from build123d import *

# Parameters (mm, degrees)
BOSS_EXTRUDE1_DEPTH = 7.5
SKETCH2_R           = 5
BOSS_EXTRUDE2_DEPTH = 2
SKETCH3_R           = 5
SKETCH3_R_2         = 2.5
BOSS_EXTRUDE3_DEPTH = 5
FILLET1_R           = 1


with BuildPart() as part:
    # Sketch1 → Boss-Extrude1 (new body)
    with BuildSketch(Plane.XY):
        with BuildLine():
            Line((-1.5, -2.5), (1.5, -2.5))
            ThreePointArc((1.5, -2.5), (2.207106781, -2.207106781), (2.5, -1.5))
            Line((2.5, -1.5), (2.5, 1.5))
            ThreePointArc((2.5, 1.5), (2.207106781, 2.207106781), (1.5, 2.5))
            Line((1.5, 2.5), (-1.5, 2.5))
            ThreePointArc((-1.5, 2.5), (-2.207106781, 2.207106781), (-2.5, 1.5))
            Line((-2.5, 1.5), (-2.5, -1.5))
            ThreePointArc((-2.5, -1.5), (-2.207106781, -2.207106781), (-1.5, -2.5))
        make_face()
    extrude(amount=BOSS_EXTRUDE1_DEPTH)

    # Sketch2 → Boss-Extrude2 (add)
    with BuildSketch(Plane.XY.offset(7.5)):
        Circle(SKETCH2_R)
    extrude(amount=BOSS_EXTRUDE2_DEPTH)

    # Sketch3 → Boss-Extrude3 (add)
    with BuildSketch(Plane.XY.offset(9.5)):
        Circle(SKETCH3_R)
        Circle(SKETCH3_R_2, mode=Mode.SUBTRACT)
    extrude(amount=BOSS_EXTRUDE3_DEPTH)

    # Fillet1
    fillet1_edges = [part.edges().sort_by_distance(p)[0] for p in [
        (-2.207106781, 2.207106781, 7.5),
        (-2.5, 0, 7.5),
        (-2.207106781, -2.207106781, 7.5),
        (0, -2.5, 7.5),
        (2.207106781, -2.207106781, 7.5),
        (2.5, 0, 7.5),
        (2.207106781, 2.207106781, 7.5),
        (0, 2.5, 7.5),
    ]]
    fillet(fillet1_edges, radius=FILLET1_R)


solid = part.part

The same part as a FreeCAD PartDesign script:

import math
import FreeCAD as App
import Part
import Sketcher


def edges_at(feature, points):
    """Names of the edges that pass closest to the given points."""
    edges = feature.Shape.Edges
    near = lambda p: min(range(len(edges)), key=lambda i: edges[i].distToShape(Part.Vertex(*p))[0])
    return sorted({f"Edge{near(p) + 1}" for p in points})

doc = App.newDocument("Part")
body = doc.addObject("PartDesign::Body", "Body")

sketch1 = doc.addObject("Sketcher::SketchObject", "Sketch")
body.addObject(sketch1)
sketch1.AttachmentSupport = (doc.XY_Plane, [""])
sketch1.MapMode = "FlatFace"
sketch1.addGeometry(Part.LineSegment(App.Vector(-1.5, -2.5, 0), App.Vector(1.5, -2.5, 0)), False)
sketch1.addGeometry(Part.ArcOfCircle(Part.Circle(App.Vector(1.5, -1.5, 0), App.Vector(0, 0, 1), 1), math.radians(-90), math.radians(0)), False)
sketch1.addGeometry(Part.LineSegment(App.Vector(2.5, -1.5, 0), App.Vector(2.5, 1.5, 0)), False)
sketch1.addGeometry(Part.ArcOfCircle(Part.Circle(App.Vector(1.5, 1.5, 0), App.Vector(0, 0, 1), 1), math.radians(0), math.radians(90)), False)
sketch1.addGeometry(Part.LineSegment(App.Vector(1.5, 2.5, 0), App.Vector(-1.5, 2.5, 0)), False)
sketch1.addGeometry(Part.ArcOfCircle(Part.Circle(App.Vector(-1.5, 1.5, 0), App.Vector(0, 0, 1), 1), math.radians(90), math.radians(180)), False)
sketch1.addGeometry(Part.LineSegment(App.Vector(-2.5, 1.5, 0), App.Vector(-2.5, -1.5, 0)), False)
sketch1.addGeometry(Part.ArcOfCircle(Part.Circle(App.Vector(-1.5, -1.5, 0), App.Vector(0, 0, 1), 1), math.radians(-180), math.radians(-90)), False)
sketch1.addConstraint(Sketcher.Constraint("Tangent", 0, 2, 1, 1))
sketch1.addConstraint(Sketcher.Constraint("Tangent", 1, 2, 2, 1))
sketch1.addConstraint(Sketcher.Constraint("Tangent", 2, 2, 3, 1))
sketch1.addConstraint(Sketcher.Constraint("Tangent", 3, 2, 4, 1))
sketch1.addConstraint(Sketcher.Constraint("Tangent", 4, 2, 5, 1))
sketch1.addConstraint(Sketcher.Constraint("Tangent", 5, 2, 6, 1))
sketch1.addConstraint(Sketcher.Constraint("Tangent", 6, 2, 7, 1))
sketch1.addConstraint(Sketcher.Constraint("Tangent", 7, 2, 0, 1))
sketch1.addConstraint(Sketcher.Constraint("Horizontal", 0))
sketch1.addConstraint(Sketcher.Constraint("Vertical", 2))
sketch1.addConstraint(Sketcher.Constraint("Horizontal", 4))
sketch1.addConstraint(Sketcher.Constraint("Vertical", 6))
sketch1.addConstraint(Sketcher.Constraint("Equal", 1, 3))
sketch1.addConstraint(Sketcher.Constraint("Equal", 3, 5))
sketch1.addConstraint(Sketcher.Constraint("Equal", 5, 7))
sketch1.addConstraint(Sketcher.Constraint("Symmetric", 1, 3, 5, 3, -1, 1))
sketch1.addConstraint(Sketcher.Constraint("Equal", 4, 2))
sketch1.addConstraint(Sketcher.Constraint("Radius", 1, 1.0))
sketch1.addConstraint(Sketcher.Constraint("DistanceX", 0, 1, 0, 2, 3.0))
pad1 = doc.addObject("PartDesign::Pad", "Pad")
body.addObject(pad1)
pad1.Profile = sketch1
pad1.Length = 7.5

sketch2 = doc.addObject("Sketcher::SketchObject", "Sketch001")
body.addObject(sketch2)
sketch2.AttachmentSupport = (doc.XY_Plane, [""])
sketch2.MapMode = "FlatFace"
sketch2.AttachmentOffset = App.Placement(App.Vector(0, 0, 7.5), App.Rotation())
sketch2.addGeometry(Part.Circle(App.Vector(0, 0, 0), App.Vector(0, 0, 1), 5), False)
sketch2.addConstraint(Sketcher.Constraint("Coincident", 0, 3, -1, 1))
sketch2.addConstraint(Sketcher.Constraint("Diameter", 0, 10.0))
pad2 = doc.addObject("PartDesign::Pad", "Pad001")
body.addObject(pad2)
pad2.Profile = sketch2
pad2.Length = 2

sketch3 = doc.addObject("Sketcher::SketchObject", "Sketch002")
body.addObject(sketch3)
sketch3.AttachmentSupport = (doc.XY_Plane, [""])
sketch3.MapMode = "FlatFace"
sketch3.AttachmentOffset = App.Placement(App.Vector(0, 0, 9.5), App.Rotation())
sketch3.addGeometry(Part.Circle(App.Vector(0, 0, 0), App.Vector(0, 0, 1), 5), False)
sketch3.addGeometry(Part.Circle(App.Vector(0, 0, 0), App.Vector(0, 0, 1), 2.5), False)
sketch3.addConstraint(Sketcher.Constraint("Coincident", 0, 3, -1, 1))
sketch3.addConstraint(Sketcher.Constraint("Coincident", 1, 3, -1, 1))
sketch3.addConstraint(Sketcher.Constraint("Diameter", 0, 10.0))
sketch3.addConstraint(Sketcher.Constraint("Diameter", 1, 5.0))
pad3 = doc.addObject("PartDesign::Pad", "Pad002")
body.addObject(pad3)
pad3.Profile = sketch3
pad3.Length = 5
doc.recompute()

fillet = doc.addObject("PartDesign::Fillet", "Fillet")
body.addObject(fillet)
fillet.Base = (pad3, edges_at(pad3, [
    (-2.207, 2.207, 7.5),
    (-2.5, 0, 7.5),
    (-2.207, -2.207, 7.5),
    (0, -2.5, 7.5),
    (2.207, -2.207, 7.5),
    (2.5, 0, 7.5),
    (2.207, 2.207, 7.5),
    (0, 2.5, 7.5),
]))
fillet.Radius = 1

doc.recompute()
